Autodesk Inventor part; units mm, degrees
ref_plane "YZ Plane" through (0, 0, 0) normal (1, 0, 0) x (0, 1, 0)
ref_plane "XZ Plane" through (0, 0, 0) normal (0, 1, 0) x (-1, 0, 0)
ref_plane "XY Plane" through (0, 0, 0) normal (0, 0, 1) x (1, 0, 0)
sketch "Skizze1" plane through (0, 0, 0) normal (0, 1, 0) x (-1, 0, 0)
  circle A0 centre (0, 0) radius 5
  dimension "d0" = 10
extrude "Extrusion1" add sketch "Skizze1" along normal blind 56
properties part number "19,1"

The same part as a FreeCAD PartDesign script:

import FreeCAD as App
import Part
import Sketcher
from FreeCAD import Vector

doc = App.newDocument("Part")
params = doc.addObject("Spreadsheet::Sheet", "Params")
for row, (alias, value) in enumerate([
    ("sketch1_diameter", "10 mm"),
    ("pad1_length", "56 mm"),
], start=1):
    params.set(f"A{row}", alias)
    params.set(f"B{row}", "=" + value)
    params.setAlias(f"B{row}", alias)

body = doc.addObject("PartDesign::Body", "Body")

sketch1 = body.newObject("Sketcher::SketchObject", "Sketch")
sketch1.AttachmentSupport = (doc.getObject("XZ_Plane"), [""])
sketch1.MapMode = "FlatFace"
sketch1.addGeometry(Part.Circle(Vector(0, 0, 0), Vector(0, 0, 1), 5), False)
sketch1.addConstraint(Sketcher.Constraint("Coincident", 0, 3, -1, 1))
sketch1.addConstraint(Sketcher.Constraint("Diameter", 0, 10.0))
sketch1.setExpression("Constraints[1]", "Params.sketch1_diameter")
pad1 = body.newObject("PartDesign::Pad", "Pad")
pad1.Profile = sketch1
pad1.setExpression("Length", "Params.pad1_length")
pad1.Reversed = True

doc.recompute()
